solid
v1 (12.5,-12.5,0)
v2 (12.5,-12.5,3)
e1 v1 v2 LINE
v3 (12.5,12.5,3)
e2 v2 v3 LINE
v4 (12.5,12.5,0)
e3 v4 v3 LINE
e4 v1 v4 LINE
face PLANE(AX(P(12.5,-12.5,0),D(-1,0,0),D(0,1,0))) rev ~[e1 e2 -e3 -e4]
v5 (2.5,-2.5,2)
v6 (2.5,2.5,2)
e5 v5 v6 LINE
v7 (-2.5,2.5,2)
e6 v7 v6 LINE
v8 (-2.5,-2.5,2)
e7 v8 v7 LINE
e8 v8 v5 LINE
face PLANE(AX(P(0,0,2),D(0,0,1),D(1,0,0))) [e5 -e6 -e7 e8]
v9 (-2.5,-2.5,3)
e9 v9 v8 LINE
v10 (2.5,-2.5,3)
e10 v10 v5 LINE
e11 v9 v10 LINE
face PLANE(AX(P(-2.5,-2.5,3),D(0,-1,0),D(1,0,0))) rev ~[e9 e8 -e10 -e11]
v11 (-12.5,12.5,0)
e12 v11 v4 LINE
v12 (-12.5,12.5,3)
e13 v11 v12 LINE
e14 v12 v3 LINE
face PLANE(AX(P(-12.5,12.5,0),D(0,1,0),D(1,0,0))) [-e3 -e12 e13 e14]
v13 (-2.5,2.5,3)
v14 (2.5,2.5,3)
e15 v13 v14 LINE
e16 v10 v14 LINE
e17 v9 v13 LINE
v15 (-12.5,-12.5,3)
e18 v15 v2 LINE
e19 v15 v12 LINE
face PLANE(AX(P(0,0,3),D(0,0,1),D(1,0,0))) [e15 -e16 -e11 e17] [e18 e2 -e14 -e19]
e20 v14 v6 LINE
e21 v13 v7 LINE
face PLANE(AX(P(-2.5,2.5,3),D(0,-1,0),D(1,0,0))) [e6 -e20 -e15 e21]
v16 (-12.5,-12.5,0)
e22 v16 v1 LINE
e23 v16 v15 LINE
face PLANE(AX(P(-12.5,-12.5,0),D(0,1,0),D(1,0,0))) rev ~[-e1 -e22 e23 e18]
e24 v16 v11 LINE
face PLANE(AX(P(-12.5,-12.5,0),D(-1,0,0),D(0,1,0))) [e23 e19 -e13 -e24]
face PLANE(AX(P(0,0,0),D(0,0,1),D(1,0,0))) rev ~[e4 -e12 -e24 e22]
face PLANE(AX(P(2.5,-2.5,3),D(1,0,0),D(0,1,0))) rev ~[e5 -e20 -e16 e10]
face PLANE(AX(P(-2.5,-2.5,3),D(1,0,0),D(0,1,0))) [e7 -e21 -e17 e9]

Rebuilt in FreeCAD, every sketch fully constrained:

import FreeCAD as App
import Part
import Sketcher


def add_polygon(sketch, points):
    """Adds a closed chain of lines whose ends are joined by coincident constraints."""
    first, n = sketch.GeometryCount, len(points)
    for a, b in zip(points, points[1:] + points[:1]):
        sketch.addGeometry(Part.LineSegment(App.Vector(*a, 0), App.Vector(*b, 0)), False)
    for i in range(n):
        sketch.addConstraint(Sketcher.Constraint("Coincident", first + i, 2, first + (i + 1) % n, 1))

doc = App.newDocument("Part")
body = doc.addObject("PartDesign::Body", "Body")

# Sketch on XY plane
sketch1 = doc.addObject("Sketcher::SketchObject", "Sketch")
body.addObject(sketch1)
sketch1.AttachmentSupport = (doc.XY_Plane, [""])
sketch1.MapMode = "FlatFace"
add_polygon(sketch1, [(-12, 12), (-12, -12), (12, -12), (12, 12)])  # lines 0-3
sketch1.addConstraint([
    Sketcher.Constraint("Vertical", 0),
    Sketcher.Constraint("Horizontal", 1),
    Sketcher.Constraint("Vertical", 2),
    Sketcher.Constraint("Horizontal", 3),
    Sketcher.Constraint("Symmetric", 0, 2, 2, 2, -1, 1),
    Sketcher.Constraint("Equal", 3, 0),
    Sketcher.Constraint("DistanceX", 1, 1, 1, 2, 25.0),
])
pad1 = doc.addObject("PartDesign::Pad", "Pad")
body.addObject(pad1)
pad1.Profile = sketch1
pad1.Length = 3
body2 = doc.addObject("PartDesign::Body", "Body001")

# Sketch on XY plane
sketch2 = doc.addObject("Sketcher::SketchObject", "Sketch001")
body2.addObject(sketch2)
sketch2.AttachmentSupport = (doc.getObject("XY_Plane001"), [""])
sketch2.MapMode = "FlatFace"
sketch2.AttachmentOffset = App.Placement(App.Vector(0, 0, 3), App.Rotation())
add_polygon(sketch2, [(-2, 2), (-2, -2), (2, -2), (2, 2)])  # lines 0-3
sketch2.addConstraint([
    Sketcher.Constraint("Vertical", 0),
    Sketcher.Constraint("Horizontal", 1),
    Sketcher.Constraint("Vertical", 2),
    Sketcher.Constraint("Horizontal", 3),
    Sketcher.Constraint("Symmetric", 0, 2, 2, 2, -1, 1),
    Sketcher.Constraint("Equal", 3, 0),
    Sketcher.Constraint("DistanceX", 1, 1, 1, 2, 5.0),
])
pad2 = doc.addObject("PartDesign::Pad", "Pad001")
body2.addObject(pad2)
pad2.Profile = sketch2
pad2.Length = 1
pad2.Reversed = True
doc.recompute()

boolean = doc.addObject("PartDesign::Boolean", "Boolean")
body.addObject(boolean)
boolean.Type = "Cut"
boolean.addObjects([body2])

doc.recompute()
